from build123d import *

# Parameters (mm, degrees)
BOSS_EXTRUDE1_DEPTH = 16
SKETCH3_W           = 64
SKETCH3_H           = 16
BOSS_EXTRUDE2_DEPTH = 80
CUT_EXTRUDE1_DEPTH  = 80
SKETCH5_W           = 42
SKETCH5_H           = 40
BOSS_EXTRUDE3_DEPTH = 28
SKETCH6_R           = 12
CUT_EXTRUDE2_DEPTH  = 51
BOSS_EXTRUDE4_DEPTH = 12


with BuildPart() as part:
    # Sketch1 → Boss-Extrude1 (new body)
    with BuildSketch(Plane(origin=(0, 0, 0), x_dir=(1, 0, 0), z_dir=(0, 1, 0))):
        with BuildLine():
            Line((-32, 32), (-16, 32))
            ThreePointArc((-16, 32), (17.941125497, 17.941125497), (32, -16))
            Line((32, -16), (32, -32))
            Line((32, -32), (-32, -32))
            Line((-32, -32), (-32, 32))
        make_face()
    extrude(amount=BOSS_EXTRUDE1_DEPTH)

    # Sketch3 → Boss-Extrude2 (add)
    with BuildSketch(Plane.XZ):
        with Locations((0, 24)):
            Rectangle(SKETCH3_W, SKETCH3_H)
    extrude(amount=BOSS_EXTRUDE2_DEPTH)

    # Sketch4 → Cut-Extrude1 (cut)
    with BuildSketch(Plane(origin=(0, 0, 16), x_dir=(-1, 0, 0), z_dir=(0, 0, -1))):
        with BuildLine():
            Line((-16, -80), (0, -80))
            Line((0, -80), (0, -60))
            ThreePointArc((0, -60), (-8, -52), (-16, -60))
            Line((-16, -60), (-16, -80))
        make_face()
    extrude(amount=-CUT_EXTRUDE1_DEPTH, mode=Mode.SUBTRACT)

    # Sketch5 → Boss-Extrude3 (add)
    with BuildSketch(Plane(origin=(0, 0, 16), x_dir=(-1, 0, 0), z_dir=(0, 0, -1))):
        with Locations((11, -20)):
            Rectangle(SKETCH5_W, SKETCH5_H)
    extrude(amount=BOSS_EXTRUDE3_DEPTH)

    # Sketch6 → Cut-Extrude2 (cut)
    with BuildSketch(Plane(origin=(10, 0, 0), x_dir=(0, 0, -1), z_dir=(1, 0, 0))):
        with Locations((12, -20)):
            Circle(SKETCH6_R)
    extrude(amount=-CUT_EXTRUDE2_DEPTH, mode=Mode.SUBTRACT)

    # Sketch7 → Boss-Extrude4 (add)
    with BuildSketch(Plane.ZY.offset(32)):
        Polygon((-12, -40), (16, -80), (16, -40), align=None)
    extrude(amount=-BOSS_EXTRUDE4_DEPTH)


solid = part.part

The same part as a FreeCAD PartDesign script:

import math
import FreeCAD as App
import Part
import Sketcher
from FreeCAD import Vector

doc = App.newDocument("Part")
body = doc.addObject("PartDesign::Body", "Body")

# Sketch on XZ plane
sketch1 = body.newObject("Sketcher::SketchObject", "Sketch")
sketch1.AttachmentSupport = (doc.getObject("XZ_Plane"), [""])
sketch1.MapMode = "FlatFace"
sketch1.addGeometry(Part.LineSegment(Vector(-16, -32, 0), Vector(-32, -32, 0)), False)
sketch1.addGeometry(Part.LineSegment(Vector(-32, -32, 0), Vector(-32, 32, 0)), False)
sketch1.addGeometry(Part.LineSegment(Vector(-32, 32, 0), Vector(32, 32, 0)), False)
sketch1.addGeometry(Part.LineSegment(Vector(32, 32, 0), Vector(32, 16, 0)), False)
sketch1.addGeometry(Part.ArcOfCircle(Part.Circle(Vector(-16, 16, 0), Vector(0, 0, 1), 48), math.radians(-90), math.radians(0)), False)
sketch1.addConstraint(Sketcher.Constraint("Coincident", 0, 2, 1, 1))
sketch1.addConstraint(Sketcher.Constraint("Coincident", 1, 2, 2, 1))
sketch1.addConstraint(Sketcher.Constraint("Coincident", 2, 2, 3, 1))
sketch1.addConstraint(Sketcher.Constraint("Tangent", 3, 2, 4, 2))
sketch1.addConstraint(Sketcher.Constraint("Tangent", 4, 1, 0, 1))
sketch1.addConstraint(Sketcher.Constraint("Horizontal", 0))
sketch1.addConstraint(Sketcher.Constraint("Vertical", 1))
sketch1.addConstraint(Sketcher.Constraint("Horizontal", 2))
sketch1.addConstraint(Sketcher.Constraint("Vertical", 3))
sketch1.addConstraint(Sketcher.Constraint("Symmetric", 0, 2, 2, 2, -1, 1))
sketch1.addConstraint(Sketcher.Constraint("Equal", 2, 1))
sketch1.addConstraint(Sketcher.Constraint("Radius", 4, 48.0))
sketch1.addConstraint(Sketcher.Constraint("DistanceX", 0, 2, 0, 1, 16.0))
pad1 = body.newObject("PartDesign::Pad", "Pad")
pad1.Profile = sketch1
pad1.Length = 16
pad1.Reversed = True

# Sketch on XZ plane
sketch2 = body.newObject("Sketcher::SketchObject", "Sketch001")
sketch2.AttachmentSupport = (doc.getObject("XZ_Plane"), [""])
sketch2.MapMode = "FlatFace"
sketch2.addGeometry(Part.LineSegment(Vector(-32, 32, 0), Vector(-32, 16, 0)), False)
sketch2.addGeometry(Part.LineSegment(Vector(-32, 16, 0), Vector(32, 16, 0)), False)
sketch2.addGeometry(Part.LineSegment(Vector(32, 16, 0), Vector(32, 32, 0)), False)
sketch2.addGeometry(Part.LineSegment(Vector(32, 32, 0), Vector(-32, 32, 0)), False)
sketch2.addConstraint(Sketcher.Constraint("Coincident", 0, 2, 1, 1))
sketch2.addConstraint(Sketcher.Constraint("Coincident", 1, 2, 2, 1))
sketch2.addConstraint(Sketcher.Constraint("Coincident", 2, 2, 3, 1))
sketch2.addConstraint(Sketcher.Constraint("Coincident", 3, 2, 0, 1))
sketch2.addConstraint(Sketcher.Constraint("Vertical", 0))
sketch2.addConstraint(Sketcher.Constraint("Horizontal", 1))
sketch2.addConstraint(Sketcher.Constraint("Vertical", 2))
sketch2.addConstraint(Sketcher.Constraint("Horizontal", 3))
sketch2.addConstraint(Sketcher.Constraint("DistanceX", 1, 1, 1, 2, 64.0))
sketch2.addConstraint(Sketcher.Constraint("DistanceY", 0, 2, 0, 1, 16.0))
sketch2.addConstraint(Sketcher.Constraint("DistanceX", 0, 2, -1, 1, 32.0))
sketch2.addConstraint(Sketcher.Constraint("DistanceY", -1, 1, 0, 2, 16.0))
pad2 = body.newObject("PartDesign::Pad", "Pad001")
pad2.Profile = sketch2
pad2.Length = 80

# Sketch on XY plane
sketch3 = body.newObject("Sketcher::SketchObject", "Sketch002")
sketch3.AttachmentSupport = (doc.getObject("XY_Plane"), [""])
sketch3.MapMode = "FlatFace"
sketch3.AttachmentOffset = App.Placement(Vector(0, 0, 16), App.Rotation())
sketch3.addGeometry(Part.LineSegment(Vector(16, -80, 0), Vector(0, -80, 0)), False)
sketch3.addGeometry(Part.LineSegment(Vector(0, -80, 0), Vector(0, -60, 0)), False)
sketch3.addGeometry(Part.ArcOfCircle(Part.Circle(Vector(8, -60, 0), Vector(0, 0, 1), 8), math.radians(0), math.radians(180)), False)
sketch3.addGeometry(Part.LineSegment(Vector(16, -60, 0), Vector(16, -80, 0)), False)
sketch3.addConstraint(Sketcher.Constraint("Coincident", 0, 2, 1, 1))
sketch3.addConstraint(Sketcher.Constraint("Tangent", 1, 2, 2, 2))
sketch3.addConstraint(Sketcher.Constraint("Tangent", 2, 1, 3, 1))
sketch3.addConstraint(Sketcher.Constraint("Coincident", 3, 2, 0, 1))
sketch3.addConstraint(Sketcher.Constraint("Horizontal", 0))
sketch3.addConstraint(Sketcher.Constraint("Vertical", 1))
sketch3.addConstraint(Sketcher.Constraint("Vertical", 3))
sketch3.addConstraint(Sketcher.Constraint("PointOnObject", 0, 2, -2))
sketch3.addConstraint(Sketcher.Constraint("Radius", 2, 8.0))
sketch3.addConstraint(Sketcher.Constraint("DistanceY", 1, 1, 1, 2, 20.0))
sketch3.addConstraint(Sketcher.Constraint("DistanceY", 2, 3, -1, 1, 60.0))
pocket1 = body.newObject("PartDesign::Pocket", "Pocket")
pocket1.Profile = sketch3
pocket1.Length = 80
pocket1.Reversed = True

# Sketch on XY plane
sketch4 = body.newObject("Sketcher::SketchObject", "Sketch003")
sketch4.AttachmentSupport = (doc.getObject("XY_Plane"), [""])
sketch4.MapMode = "FlatFace"
sketch4.AttachmentOffset = App.Placement(Vector(0, 0, 16), App.Rotation())
sketch4.addGeometry(Part.LineSegment(Vector(10, 0, 0), Vector(10, -40, 0)), False)
sketch4.addGeometry(Part.LineSegment(Vector(10, -40, 0), Vector(-32, -40, 0)), False)
sketch4.addGeometry(Part.LineSegment(Vector(-32, -40, 0), Vector(-32, 0, 0)), False)
sketch4.addGeometry(Part.LineSegment(Vector(-32, 0, 0), Vector(10, 0, 0)), False)
sketch4.addConstraint(Sketcher.Constraint("Coincident", 0, 2, 1, 1))
sketch4.addConstraint(Sketcher.Constraint("Coincident", 1, 2, 2, 1))
sketch4.addConstraint(Sketcher.Constraint("Coincident", 2, 2, 3, 1))
sketch4.addConstraint(Sketcher.Constraint("Coincident", 3, 2, 0, 1))
sketch4.addConstraint(Sketcher.Constraint("Vertical", 0))
sketch4.addConstraint(Sketcher.Constraint("Horizontal", 1))
sketch4.addConstraint(Sketcher.Constraint("Vertical", 2))
sketch4.addConstraint(Sketcher.Constraint("Horizontal", 3))
sketch4.addConstraint(Sketcher.Constraint("PointOnObject", 2, 2, -1))
sketch4.addConstraint(Sketcher.Constraint("DistanceX", 1, 2, 1, 1, 42.0))
sketch4.addConstraint(Sketcher.Constraint("DistanceY", 0, 2, 0, 1, 40.0))
sketch4.addConstraint(Sketcher.Constraint("DistanceX", -1, 1, 0, 2, 10.0))
pad3 = body.newObject("PartDesign::Pad", "Pad002")
pad3.Profile = sketch4
pad3.Length = 28
pad3.Reversed = True

# Sketch on YZ plane
sketch5 = body.newObject("Sketcher::SketchObject", "Sketch004")
sketch5.AttachmentSupport = (doc.getObject("YZ_Plane"), [""])
sketch5.MapMode = "FlatFace"
sketch5.AttachmentOffset = App.Placement(Vector(0, 0, 10), App.Rotation())
sketch5.addGeometry(Part.Circle(Vector(-20, -12, 0), Vector(0, 0, 1), 12), False)
sketch5.addConstraint(Sketcher.Constraint("Diameter", 0, 24.0))
sketch5.addConstraint(Sketcher.Constraint("DistanceX", 0, 3, -1, 1, 20.0))
sketch5.addConstraint(Sketcher.Constraint("DistanceY", 0, 3, -1, 1, 12.0))
pocket2 = body.newObject("PartDesign::Pocket", "Pocket001")
pocket2.Profile = sketch5
pocket2.Length = 51

# Sketch on YZ plane
sketch6 = body.newObject("Sketcher::SketchObject", "Sketch005")
sketch6.AttachmentSupport = (doc.getObject("YZ_Plane"), [""])
sketch6.MapMode = "FlatFace"
sketch6.AttachmentOffset = App.Placement(Vector(0, 0, -32), App.Rotation())
sketch6.addGeometry(Part.LineSegment(Vector(-40, -12, 0), Vector(-80, 16, 0)), False)
sketch6.addGeometry(Part.LineSegment(Vector(-80, 16, 0), Vector(-40, 16, 0)), False)
sketch6.addGeometry(Part.LineSegment(Vector(-40, 16, 0), Vector(-40, -12, 0)), False)
sketch6.addConstraint(Sketcher.Constraint("Coincident", 0, 2, 1, 1))
sketch6.addConstraint(Sketcher.Constraint("Coincident", 1, 2, 2, 1))
sketch6.addConstraint(Sketcher.Constraint("Coincident", 2, 2, 0, 1))
sketch6.addConstraint(Sketcher.Constraint("Horizontal", 1))
sketch6.addConstraint(Sketcher.Constraint("Vertical", 2))
sketch6.addConstraint(Sketcher.Constraint("DistanceX", 1, 1, 1, 2, 40.0))
sketch6.addConstraint(Sketcher.Constraint("DistanceY", 2, 2, 2, 1, 28.0))
sketch6.addConstraint(Sketcher.Constraint("DistanceX", 0, 2, -1, 1, 80.0))
sketch6.addConstraint(Sketcher.Constraint("DistanceY", -1, 1, 0, 2, 16.0))
pad4 = body.newObject("PartDesign::Pad", "Pad003")
pad4.Profile = sketch6
pad4.Length = 12

doc.recompute()
